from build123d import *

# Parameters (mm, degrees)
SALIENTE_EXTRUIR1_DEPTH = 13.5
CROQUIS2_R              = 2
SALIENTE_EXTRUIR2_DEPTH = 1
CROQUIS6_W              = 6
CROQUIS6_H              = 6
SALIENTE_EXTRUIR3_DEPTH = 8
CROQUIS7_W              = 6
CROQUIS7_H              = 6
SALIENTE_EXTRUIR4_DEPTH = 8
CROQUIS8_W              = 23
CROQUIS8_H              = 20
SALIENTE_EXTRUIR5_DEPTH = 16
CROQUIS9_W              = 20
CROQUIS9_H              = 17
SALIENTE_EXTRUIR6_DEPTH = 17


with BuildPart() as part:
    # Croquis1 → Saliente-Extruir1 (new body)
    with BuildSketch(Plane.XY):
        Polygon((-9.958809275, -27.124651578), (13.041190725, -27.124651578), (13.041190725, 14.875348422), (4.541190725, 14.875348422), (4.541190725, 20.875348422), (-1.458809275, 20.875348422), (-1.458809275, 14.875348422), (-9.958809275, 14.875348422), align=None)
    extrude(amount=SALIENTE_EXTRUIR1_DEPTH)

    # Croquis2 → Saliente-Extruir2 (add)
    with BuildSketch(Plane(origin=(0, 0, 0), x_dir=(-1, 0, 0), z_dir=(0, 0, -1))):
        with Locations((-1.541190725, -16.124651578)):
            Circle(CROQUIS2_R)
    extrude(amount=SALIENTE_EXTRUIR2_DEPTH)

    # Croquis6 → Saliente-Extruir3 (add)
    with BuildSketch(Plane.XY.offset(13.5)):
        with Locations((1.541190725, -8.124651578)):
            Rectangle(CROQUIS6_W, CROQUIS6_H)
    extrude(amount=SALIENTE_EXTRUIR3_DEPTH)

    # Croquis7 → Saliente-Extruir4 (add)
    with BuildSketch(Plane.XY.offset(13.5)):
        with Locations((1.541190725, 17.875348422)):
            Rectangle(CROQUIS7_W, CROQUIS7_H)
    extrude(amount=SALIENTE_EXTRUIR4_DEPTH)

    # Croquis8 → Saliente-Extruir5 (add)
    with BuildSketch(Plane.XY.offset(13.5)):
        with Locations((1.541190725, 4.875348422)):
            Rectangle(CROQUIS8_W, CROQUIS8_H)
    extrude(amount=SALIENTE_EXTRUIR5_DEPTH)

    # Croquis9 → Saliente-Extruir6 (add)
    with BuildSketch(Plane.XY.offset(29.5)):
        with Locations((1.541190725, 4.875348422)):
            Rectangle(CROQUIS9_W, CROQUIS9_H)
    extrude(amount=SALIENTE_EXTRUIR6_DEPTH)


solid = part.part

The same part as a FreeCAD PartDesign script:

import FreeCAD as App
import Part
import Sketcher


def add_polygon(sketch, points):
    """Adds a closed chain of lines whose ends are joined by coincident constraints."""
    first, n = sketch.GeometryCount, len(points)
    for a, b in zip(points, points[1:] + points[:1]):
        sketch.addGeometry(Part.LineSegment(App.Vector(*a, 0), App.Vector(*b, 0)), False)
    for i in range(n):
        sketch.addConstraint(Sketcher.Constraint("Coincident", first + i, 2, first + (i + 1) % n, 1))

doc = App.newDocument("Part")
body = doc.addObject("PartDesign::Body", "Body")

# Sketch on XY plane
sketch1 = body.newObject("Sketcher::SketchObject", "Sketch")
sketch1.AttachmentSupport = (doc.getObject("XY_Plane"), [""])
sketch1.MapMode = "FlatFace"
add_polygon(sketch1, [(-10, -27), (13, -27), (13, 15), (5, 15), (5, 21), (-1, 21), (-1, 15), (-10, 15)])  # lines 0-7
sketch1.addConstraint([
    Sketcher.Constraint("Horizontal", 0),
    Sketcher.Constraint("Vertical", 1),
    Sketcher.Constraint("Horizontal", 2),
    Sketcher.Constraint("Vertical", 3),
    Sketcher.Constraint("Horizontal", 4),
    Sketcher.Constraint("Vertical", 5),
    Sketcher.Constraint("Horizontal", 6),
    Sketcher.Constraint("Vertical", 7),
    Sketcher.Constraint("Horizontal", 2, 2, 5, 2),
    Sketcher.Constraint("Equal", 2, 6),
    Sketcher.Constraint("Equal", 4, 3),
    Sketcher.Constraint("DistanceX", 0, 1, 0, 2, 23.0),
    Sketcher.Constraint("DistanceX", 4, 2, 4, 1, 6.0),
    Sketcher.Constraint("DistanceY", 1, 1, 1, 2, 42.0),
    Sketcher.Constraint("DistanceX", -1, 1, 0, 2, 13.041191),
    Sketcher.Constraint("DistanceY", 0, 2, -1, 1, 27.124652),
])
pad1 = body.newObject("PartDesign::Pad", "Pad")
pad1.Profile = sketch1
pad1.Length = 13.5

# Sketch on XY plane
sketch2 = body.newObject("Sketcher::SketchObject", "Sketch001")
sketch2.AttachmentSupport = (doc.getObject("XY_Plane"), [""])
sketch2.MapMode = "FlatFace"
sketch2.addGeometry(Part.Circle(App.Vector(1.5, -16.1, 0), App.Vector(0, 0, 1), 2), False)
sketch2.addConstraint([
    Sketcher.Constraint("Diameter", 0, 4.0),
    Sketcher.Constraint("DistanceX", -1, 1, 0, 3, 1.541191),
    Sketcher.Constraint("DistanceY", 0, 3, -1, 1, 16.124652),
])
pad2 = body.newObject("PartDesign::Pad", "Pad001")
pad2.Profile = sketch2
pad2.Length = 1
pad2.Reversed = True

# Sketch on XY plane
sketch3 = body.newObject("Sketcher::SketchObject", "Sketch002")
sketch3.AttachmentSupport = (doc.getObject("XY_Plane"), [""])
sketch3.MapMode = "FlatFace"
sketch3.AttachmentOffset = App.Placement(App.Vector(0, 0, 13.5), App.Rotation())
add_polygon(sketch3, [(-1, -5), (-1, -11), (5, -11), (5, -5)])  # lines 0-3
sketch3.addConstraint([
    Sketcher.Constraint("Vertical", 0),
    Sketcher.Constraint("Horizontal", 1),
    Sketcher.Constraint("Vertical", 2),
    Sketcher.Constraint("Horizontal", 3),
    Sketcher.Constraint("Equal", 3, 0),
    Sketcher.Constraint("DistanceX", 1, 1, 1, 2, 6.0),
    Sketcher.Constraint("DistanceX", 0, 2, -1, 1, 1.458809),
    Sketcher.Constraint("DistanceY", 0, 2, -1, 1, 11.124652),
])
pad3 = body.newObject("PartDesign::Pad", "Pad002")
pad3.Profile = sketch3
pad3.Length = 8

# Sketch on XY plane
sketch4 = body.newObject("Sketcher::SketchObject", "Sketch003")
sketch4.AttachmentSupport = (doc.getObject("XY_Plane"), [""])
sketch4.MapMode = "FlatFace"
sketch4.AttachmentOffset = App.Placement(App.Vector(0, 0, 13.5), App.Rotation())
add_polygon(sketch4, [(-1, 21), (-1, 15), (5, 15), (5, 21)])  # lines 0-3
sketch4.addConstraint([
    Sketcher.Constraint("Vertical", 0),
    Sketcher.Constraint("Horizontal", 1),
    Sketcher.Constraint("Vertical", 2),
    Sketcher.Constraint("Horizontal", 3),
    Sketcher.Constraint("Equal", 3, 0),
    Sketcher.Constraint("DistanceX", 1, 1, 1, 2, 6.0),
    Sketcher.Constraint("DistanceX", 0, 2, -1, 1, 1.458809),
    Sketcher.Constraint("DistanceY", -1, 1, 0, 2, 14.875348),
])
pad4 = body.newObject("PartDesign::Pad", "Pad003")
pad4.Profile = sketch4
pad4.Length = 8

# Sketch on XY plane
sketch5 = body.newObject("Sketcher::SketchObject", "Sketch004")
sketch5.AttachmentSupport = (doc.getObject("XY_Plane"), [""])
sketch5.MapMode = "FlatFace"
sketch5.AttachmentOffset = App.Placement(App.Vector(0, 0, 13.5), App.Rotation())
add_polygon(sketch5, [(-10, 15), (-10, -5), (13, -5), (13, 15)])  # lines 0-3
sketch5.addConstraint([
    Sketcher.Constraint("Vertical", 0),
    Sketcher.Constraint("Horizontal", 1),
    Sketcher.Constraint("Vertical", 2),
    Sketcher.Constraint("Horizontal", 3),
    Sketcher.Constraint("DistanceX", 1, 1, 1, 2, 23.0),
    Sketcher.Constraint("DistanceY", 0, 2, 0, 1, 20.0),
    Sketcher.Constraint("DistanceX", 0, 2, -1, 1, 9.958809),
    Sketcher.Constraint("DistanceY", 0, 2, -1, 1, 5.124652),
])
pad5 = body.newObject("PartDesign::Pad", "Pad004")
pad5.Profile = sketch5
pad5.Length = 16

# Sketch on XY plane
sketch6 = body.newObject("Sketcher::SketchObject", "Sketch005")
sketch6.AttachmentSupport = (doc.getObject("XY_Plane"), [""])
sketch6.MapMode = "FlatFace"
sketch6.AttachmentOffset = App.Placement(App.Vector(0, 0, 29.5), App.Rotation())
add_polygon(sketch6, [(-8, 13), (-8, -4), (12, -4), (12, 13)])  # lines 0-3
sketch6.addConstraint([
    Sketcher.Constraint("Vertical", 0),
    Sketcher.Constraint("Horizontal", 1),
    Sketcher.Constraint("Vertical", 2),
    Sketcher.Constraint("Horizontal", 3),
    Sketcher.Constraint("DistanceX", 1, 1, 1, 2, 20.0),
    Sketcher.Constraint("DistanceY", 0, 2, 0, 1, 17.0),
    Sketcher.Constraint("DistanceX", 0, 2, -1, 1, 8.458809),
    Sketcher.Constraint("DistanceY", 0, 2, -1, 1, 3.624652),
])
pad6 = body.newObject("PartDesign::Pad", "Pad005")
pad6.Profile = sketch6
pad6.Length = 17

doc.recompute()
